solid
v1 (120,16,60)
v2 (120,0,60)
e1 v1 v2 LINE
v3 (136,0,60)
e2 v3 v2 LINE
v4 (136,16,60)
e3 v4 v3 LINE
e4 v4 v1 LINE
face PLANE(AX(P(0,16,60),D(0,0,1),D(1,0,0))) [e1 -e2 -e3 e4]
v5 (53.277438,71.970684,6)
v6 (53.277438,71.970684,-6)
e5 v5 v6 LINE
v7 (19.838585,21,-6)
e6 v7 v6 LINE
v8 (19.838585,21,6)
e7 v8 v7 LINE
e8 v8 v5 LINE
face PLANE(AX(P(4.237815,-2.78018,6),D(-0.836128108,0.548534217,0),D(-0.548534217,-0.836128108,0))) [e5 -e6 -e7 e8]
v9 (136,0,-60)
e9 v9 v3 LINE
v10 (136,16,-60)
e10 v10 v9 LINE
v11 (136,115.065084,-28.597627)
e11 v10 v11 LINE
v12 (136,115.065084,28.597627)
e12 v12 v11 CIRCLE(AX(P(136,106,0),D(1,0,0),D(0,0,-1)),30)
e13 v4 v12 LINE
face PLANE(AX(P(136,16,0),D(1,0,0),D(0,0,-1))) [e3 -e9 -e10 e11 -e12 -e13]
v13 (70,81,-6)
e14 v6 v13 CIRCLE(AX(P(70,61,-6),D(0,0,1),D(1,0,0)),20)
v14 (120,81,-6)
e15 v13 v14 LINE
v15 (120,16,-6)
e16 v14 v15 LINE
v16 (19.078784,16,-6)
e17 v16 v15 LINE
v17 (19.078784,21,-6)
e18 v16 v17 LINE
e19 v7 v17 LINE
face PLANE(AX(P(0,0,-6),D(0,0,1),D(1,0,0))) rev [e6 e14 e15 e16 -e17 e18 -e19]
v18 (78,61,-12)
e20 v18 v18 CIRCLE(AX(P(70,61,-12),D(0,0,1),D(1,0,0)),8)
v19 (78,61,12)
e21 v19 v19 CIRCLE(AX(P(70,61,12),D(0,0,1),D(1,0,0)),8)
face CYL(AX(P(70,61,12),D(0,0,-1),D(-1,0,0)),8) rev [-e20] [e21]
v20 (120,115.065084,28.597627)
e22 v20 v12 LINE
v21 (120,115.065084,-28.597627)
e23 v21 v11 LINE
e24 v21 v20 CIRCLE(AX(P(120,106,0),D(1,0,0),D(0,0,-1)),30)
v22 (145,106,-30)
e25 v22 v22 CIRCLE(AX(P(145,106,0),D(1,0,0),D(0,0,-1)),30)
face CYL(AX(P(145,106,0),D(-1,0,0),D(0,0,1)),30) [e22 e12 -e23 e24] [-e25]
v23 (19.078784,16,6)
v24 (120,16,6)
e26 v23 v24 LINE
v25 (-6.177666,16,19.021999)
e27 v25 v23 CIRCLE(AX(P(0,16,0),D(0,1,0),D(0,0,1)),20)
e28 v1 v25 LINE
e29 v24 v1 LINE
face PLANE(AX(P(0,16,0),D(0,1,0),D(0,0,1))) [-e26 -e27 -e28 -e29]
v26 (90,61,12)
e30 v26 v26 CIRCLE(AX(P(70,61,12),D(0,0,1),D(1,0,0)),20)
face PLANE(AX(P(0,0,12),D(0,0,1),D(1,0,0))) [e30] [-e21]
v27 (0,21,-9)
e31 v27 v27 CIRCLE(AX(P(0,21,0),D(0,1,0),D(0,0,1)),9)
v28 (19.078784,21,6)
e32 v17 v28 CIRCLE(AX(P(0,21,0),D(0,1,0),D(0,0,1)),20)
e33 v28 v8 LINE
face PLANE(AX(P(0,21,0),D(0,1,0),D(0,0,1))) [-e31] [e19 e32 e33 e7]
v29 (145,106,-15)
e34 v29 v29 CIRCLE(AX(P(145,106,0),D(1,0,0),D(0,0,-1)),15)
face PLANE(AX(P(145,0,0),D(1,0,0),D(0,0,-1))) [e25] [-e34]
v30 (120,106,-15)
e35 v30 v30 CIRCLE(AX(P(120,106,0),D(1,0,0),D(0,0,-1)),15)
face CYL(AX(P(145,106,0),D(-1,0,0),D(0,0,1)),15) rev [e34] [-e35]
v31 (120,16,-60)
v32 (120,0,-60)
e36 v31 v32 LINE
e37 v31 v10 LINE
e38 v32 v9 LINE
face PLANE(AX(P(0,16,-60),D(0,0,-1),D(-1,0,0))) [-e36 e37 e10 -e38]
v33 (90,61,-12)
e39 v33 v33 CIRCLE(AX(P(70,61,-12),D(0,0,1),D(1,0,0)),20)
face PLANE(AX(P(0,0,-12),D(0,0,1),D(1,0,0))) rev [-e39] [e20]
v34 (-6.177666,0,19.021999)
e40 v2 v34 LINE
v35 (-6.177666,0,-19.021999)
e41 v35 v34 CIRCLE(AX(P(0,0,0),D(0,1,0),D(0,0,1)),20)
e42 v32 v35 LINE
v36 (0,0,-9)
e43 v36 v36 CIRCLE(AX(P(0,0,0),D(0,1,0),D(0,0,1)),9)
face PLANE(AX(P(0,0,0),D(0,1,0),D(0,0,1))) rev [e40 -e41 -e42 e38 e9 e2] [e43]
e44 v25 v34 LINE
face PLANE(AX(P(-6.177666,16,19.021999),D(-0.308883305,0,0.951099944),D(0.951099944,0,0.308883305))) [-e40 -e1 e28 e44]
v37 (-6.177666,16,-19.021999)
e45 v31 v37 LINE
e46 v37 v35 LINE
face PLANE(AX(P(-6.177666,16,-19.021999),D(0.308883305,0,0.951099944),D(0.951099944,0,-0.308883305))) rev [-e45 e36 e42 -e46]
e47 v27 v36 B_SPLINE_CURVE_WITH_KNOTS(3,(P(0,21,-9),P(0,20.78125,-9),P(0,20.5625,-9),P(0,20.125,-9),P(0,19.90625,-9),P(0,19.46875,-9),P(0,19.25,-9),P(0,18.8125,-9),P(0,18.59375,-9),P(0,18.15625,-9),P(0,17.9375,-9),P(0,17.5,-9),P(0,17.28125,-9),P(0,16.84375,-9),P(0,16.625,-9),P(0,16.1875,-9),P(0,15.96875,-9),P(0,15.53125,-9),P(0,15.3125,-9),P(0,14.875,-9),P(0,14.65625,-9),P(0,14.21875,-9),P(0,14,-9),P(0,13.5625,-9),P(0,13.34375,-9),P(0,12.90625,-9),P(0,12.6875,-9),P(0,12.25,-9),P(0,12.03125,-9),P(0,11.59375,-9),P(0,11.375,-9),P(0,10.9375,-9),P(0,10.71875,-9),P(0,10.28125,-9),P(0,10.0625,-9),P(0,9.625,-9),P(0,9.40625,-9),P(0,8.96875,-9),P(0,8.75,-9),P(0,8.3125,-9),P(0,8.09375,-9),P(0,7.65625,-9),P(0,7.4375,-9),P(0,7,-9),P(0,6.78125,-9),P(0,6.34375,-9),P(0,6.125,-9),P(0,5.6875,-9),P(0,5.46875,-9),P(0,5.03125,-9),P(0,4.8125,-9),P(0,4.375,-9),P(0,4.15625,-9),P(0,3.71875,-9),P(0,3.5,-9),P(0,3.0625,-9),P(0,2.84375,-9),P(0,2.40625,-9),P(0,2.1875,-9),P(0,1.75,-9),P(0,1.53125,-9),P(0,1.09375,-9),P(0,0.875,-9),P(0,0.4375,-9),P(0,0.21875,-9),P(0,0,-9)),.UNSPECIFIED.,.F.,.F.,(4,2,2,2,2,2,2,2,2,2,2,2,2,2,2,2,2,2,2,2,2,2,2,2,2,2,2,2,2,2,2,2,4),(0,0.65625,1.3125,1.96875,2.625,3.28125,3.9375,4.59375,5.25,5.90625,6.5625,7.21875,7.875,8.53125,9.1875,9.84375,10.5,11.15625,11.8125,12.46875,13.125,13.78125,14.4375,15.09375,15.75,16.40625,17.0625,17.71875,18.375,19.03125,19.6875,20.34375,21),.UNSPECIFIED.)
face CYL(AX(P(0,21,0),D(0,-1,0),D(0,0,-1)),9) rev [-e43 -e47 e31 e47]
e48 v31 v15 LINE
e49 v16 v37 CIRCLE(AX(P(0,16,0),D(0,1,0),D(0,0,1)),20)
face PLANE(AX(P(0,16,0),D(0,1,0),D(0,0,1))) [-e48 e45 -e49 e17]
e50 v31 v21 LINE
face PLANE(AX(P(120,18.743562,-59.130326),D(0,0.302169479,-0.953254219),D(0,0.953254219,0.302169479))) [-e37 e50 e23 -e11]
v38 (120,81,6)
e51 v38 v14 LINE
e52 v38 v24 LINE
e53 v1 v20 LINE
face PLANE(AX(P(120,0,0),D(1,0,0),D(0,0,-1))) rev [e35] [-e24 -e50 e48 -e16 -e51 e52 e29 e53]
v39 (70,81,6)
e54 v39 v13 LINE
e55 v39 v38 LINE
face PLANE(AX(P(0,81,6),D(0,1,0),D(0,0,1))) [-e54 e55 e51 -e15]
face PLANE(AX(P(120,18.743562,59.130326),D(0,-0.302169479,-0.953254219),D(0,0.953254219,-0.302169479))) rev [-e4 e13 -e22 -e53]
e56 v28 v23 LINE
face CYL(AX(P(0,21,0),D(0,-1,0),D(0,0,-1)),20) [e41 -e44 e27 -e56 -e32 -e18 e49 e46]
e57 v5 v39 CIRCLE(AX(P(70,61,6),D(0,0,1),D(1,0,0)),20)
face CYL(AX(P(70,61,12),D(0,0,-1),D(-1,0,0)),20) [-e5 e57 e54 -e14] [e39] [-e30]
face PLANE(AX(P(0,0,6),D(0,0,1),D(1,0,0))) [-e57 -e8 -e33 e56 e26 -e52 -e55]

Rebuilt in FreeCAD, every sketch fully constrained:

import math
import FreeCAD as App
import Part
import Sketcher
from FreeCAD import Vector
Q = App.Units.Quantity


def add_polygon(sketch, points):
    """Adds a closed chain of lines whose ends are joined by coincident constraints."""
    first, n = sketch.GeometryCount, len(points)
    for a, b in zip(points, points[1:] + points[:1]):
        sketch.addGeometry(Part.LineSegment(App.Vector(*a, 0), App.Vector(*b, 0)), False)
    for i in range(n):
        sketch.addConstraint(Sketcher.Constraint("Coincident", first + i, 2, first + (i + 1) % n, 1))

doc = App.newDocument("Part")
params = doc.addObject("Spreadsheet::Sheet", "Params")
for row, (alias, value) in enumerate([
    ("sketch1_diameter", "40 mm"),
    ("sketch1_diameter2", "18 mm"),
    ("pad1_length", "21 mm"),
    ("sketch2_radius", "20 mm"),
    ("sketch2_width", "16 mm"),
    ("sketch2_height", "120 mm"),
    ("pad2_length", "16 mm"),
    ("sketch3_radius", "30 mm"),
    ("sketch3_height", "120 mm"),
    ("pad3_length", "16 mm"),
    ("sketch4_diameter", "60 mm"),
    ("sketch4_diameter2", "30 mm"),
    ("pad4_length", "25 mm"),
    ("sketch5_diameter", "40 mm"),
    ("sketch5_diameter2", "16 mm"),
    ("pad5_length", "24 mm"),
    ("sketch6_radius", "20 mm"),
    ("sketch6_width", "50 mm"),
    ("sketch6_height", "5 mm"),
    ("sketch6_height2", "65 mm"),
    ("pad6_length", "12 mm"),
    ("pad7_length", "5 mm"),
], start=1):
    params.set(f"A{row}", alias)
    params.set(f"B{row}", "=" + value)
    params.setAlias(f"B{row}", alias)

body = doc.addObject("PartDesign::Body", "Body")

# Sketch on XZ plane
sketch1 = body.newObject("Sketcher::SketchObject", "Sketch")
sketch1.AttachmentSupport = (doc.getObject("XZ_Plane"), [""])
sketch1.MapMode = "FlatFace"
sketch1.addGeometry(Part.Circle(Vector(0, 0, 0), Vector(0, 0, 1), 20), False)
sketch1.addGeometry(Part.Circle(Vector(0, 0, 0), Vector(0, 0, 1), 9), False)
sketch1.addConstraint(Sketcher.Constraint("Coincident", 0, 3, -1, 1))
sketch1.addConstraint(Sketcher.Constraint("Coincident", 1, 3, -1, 1))
sketch1.addConstraint(Sketcher.Constraint("Diameter", 0, Q("40 mm")))
sketch1.addConstraint(Sketcher.Constraint("Diameter", 1, Q("18 mm")))
sketch1.setExpression("Constraints[2]", "Params.sketch1_diameter")
sketch1.setExpression("Constraints[3]", "Params.sketch1_diameter2")
pad1 = body.newObject("PartDesign::Pad", "Pad")
pad1.Profile = sketch1
pad1.setExpression("Length", "Params.pad1_length")
pad1.Reversed = True

# Sketch on XZ plane
sketch2 = body.newObject("Sketcher::SketchObject", "Sketch001")
sketch2.AttachmentSupport = (doc.getObject("XZ_Plane"), [""])
sketch2.MapMode = "FlatFace"
sketch2.addGeometry(Part.ArcOfCircle(Part.Circle(Vector(0, 0, 0), Vector(0, 0, 1), 20), math.radians(0), math.radians(107.991946)), False)
sketch2.addGeometry(Part.LineSegment(Vector(-6.177666, 19.021999, 0), Vector(120, 60, 0)), False)
sketch2.addGeometry(Part.LineSegment(Vector(120, 60, 0), Vector(136, 60, 0)), False)
sketch2.addGeometry(Part.LineSegment(Vector(136, 60, 0), Vector(136, -60, 0)), False)
sketch2.addGeometry(Part.LineSegment(Vector(136, -60, 0), Vector(120, -60, 0)), False)
sketch2.addGeometry(Part.LineSegment(Vector(120, -60, 0), Vector(-6.177666, -19.021999, 0)), False)
sketch2.addGeometry(Part.ArcOfCircle(Part.Circle(Vector(0, 0, 0), Vector(0, 0, 1), 20), math.radians(-107.991946), math.radians(0)), False)
sketch2.addConstraint(Sketcher.Constraint("Tangent", 0, 2, 1, 1))
sketch2.addConstraint(Sketcher.Constraint("Coincident", 1, 2, 2, 1))
sketch2.addConstraint(Sketcher.Constraint("Coincident", 2, 2, 3, 1))
sketch2.addConstraint(Sketcher.Constraint("Coincident", 3, 2, 4, 1))
sketch2.addConstraint(Sketcher.Constraint("Coincident", 4, 2, 5, 1))
sketch2.addConstraint(Sketcher.Constraint("Tangent", 5, 2, 6, 1))
sketch2.addConstraint(Sketcher.Constraint("Tangent", 6, 2, 0, 1))
sketch2.addConstraint(Sketcher.Constraint("Horizontal", 2))
sketch2.addConstraint(Sketcher.Constraint("Vertical", 3))
sketch2.addConstraint(Sketcher.Constraint("Horizontal", 4))
sketch2.addConstraint(Sketcher.Constraint("Coincident", 0, 3, -1, 1))
sketch2.addConstraint(Sketcher.Constraint("Equal", 0, 6))
sketch2.addConstraint(Sketcher.Constraint("Symmetric", 1, 2, 4, 2, -1))
sketch2.addConstraint(Sketcher.Constraint("PointOnObject", 6, 2, -1))
sketch2.addConstraint(Sketcher.Constraint("Radius", 0, Q("20 mm")))
sketch2.addConstraint(Sketcher.Constraint("DistanceX", 2, 1, 2, 2, Q("16 mm")))
sketch2.addConstraint(Sketcher.Constraint("DistanceY", 3, 2, 3, 1, Q("120 mm")))
sketch2.addConstraint(Sketcher.Constraint("DistanceX", -1, 1, 1, 2, Q("120 mm")))
sketch2.setExpression("Constraints[14]", "Params.sketch2_radius")
sketch2.setExpression("Constraints[15]", "Params.sketch2_width")
sketch2.setExpression("Constraints[16]", "Params.sketch2_height")
pad2 = body.newObject("PartDesign::Pad", "Pad001")
pad2.Profile = sketch2
pad2.setExpression("Length", "Params.pad2_length")
pad2.Reversed = True

# Sketch on YZ plane
sketch3 = body.newObject("Sketcher::SketchObject", "Sketch002")
sketch3.AttachmentSupport = (doc.getObject("YZ_Plane"), [""])
sketch3.MapMode = "FlatFace"
sketch3.AttachmentOffset = App.Placement(Vector(0, 0, 136), App.Rotation())
sketch3.addGeometry(Part.LineSegment(Vector(115.065084, 28.597627, 0), Vector(16, 60, 0)), False)
sketch3.addGeometry(Part.LineSegment(Vector(16, 60, 0), Vector(16, -60, 0)), False)
sketch3.addGeometry(Part.LineSegment(Vector(16, -60, 0), Vector(115.065084, -28.597627, 0)), False)
sketch3.addGeometry(Part.ArcOfCircle(Part.Circle(Vector(106, 0, 0), Vector(0, 0, 1), 30), math.radians(-90), math.radians(-72.412046)), False)
sketch3.addGeometry(Part.ArcOfCircle(Part.Circle(Vector(106, 0, 0), Vector(0, 0, 1), 30), math.radians(72.412046), math.radians(270)), False)
sketch3.addConstraint(Sketcher.Constraint("Coincident", 0, 2, 1, 1))
sketch3.addConstraint(Sketcher.Constraint("Coincident", 1, 2, 2, 1))
sketch3.addConstraint(Sketcher.Constraint("Tangent", 2, 2, 3, 2))
sketch3.addConstraint(Sketcher.Constraint("Tangent", 3, 1, 4, 2))
sketch3.addConstraint(Sketcher.Constraint("Tangent", 4, 1, 0, 1))
sketch3.addConstraint(Sketcher.Constraint("Vertical", 1))
sketch3.addConstraint(Sketcher.Constraint("Equal", 3, 4))
sketch3.addConstraint(Sketcher.Constraint("Symmetric", 2, 2, 4, 1, -1))
sketch3.addConstraint(Sketcher.Constraint("Vertical", 4, 3, 3, 1))
sketch3.addConstraint(Sketcher.Constraint("Radius", 3, Q("30 mm")))
sketch3.addConstraint(Sketcher.Constraint("DistanceY", 1, 2, 1, 1, Q("120 mm")))
sketch3.addConstraint(Sketcher.Constraint("DistanceX", -1, 1, 3, 3, Q("106 mm")))
sketch3.addConstraint(Sketcher.Constraint("DistanceX", -1, 1, 0, 2, Q("16 mm")))
sketch3.setExpression("Constraints[9]", "Params.sketch3_radius")
sketch3.setExpression("Constraints[10]", "Params.sketch3_height")
pad3 = body.newObject("PartDesign::Pad", "Pad002")
pad3.Profile = sketch3
pad3.setExpression("Length", "Params.pad3_length")
pad3.Reversed = True

# Sketch on YZ plane
sketch4 = body.newObject("Sketcher::SketchObject", "Sketch003")
sketch4.AttachmentSupport = (doc.getObject("YZ_Plane"), [""])
sketch4.MapMode = "FlatFace"
sketch4.AttachmentOffset = App.Placement(Vector(0, 0, 145), App.Rotation())
sketch4.addGeometry(Part.Circle(Vector(106, 0, 0), Vector(0, 0, 1), 30), False)
sketch4.addGeometry(Part.Circle(Vector(106, 0, 0), Vector(0, 0, 1), 15), False)
sketch4.addConstraint(Sketcher.Constraint("Coincident", 1, 3, 0, 3))
sketch4.addConstraint(Sketcher.Constraint("PointOnObject", 0, 3, -1))
sketch4.addConstraint(Sketcher.Constraint("Diameter", 0, Q("60 mm")))
sketch4.addConstraint(Sketcher.Constraint("Diameter", 1, Q("30 mm")))
sketch4.addConstraint(Sketcher.Constraint("DistanceX", -1, 1, 0, 3, Q("106 mm")))
sketch4.setExpression("Constraints[2]", "Params.sketch4_diameter")
sketch4.setExpression("Constraints[3]", "Params.sketch4_diameter2")
pad4 = body.newObject("PartDesign::Pad", "Pad003")
pad4.Profile = sketch4
pad4.setExpression("Length", "Params.pad4_length")
pad4.Reversed = True
body2 = doc.addObject("PartDesign::Body", "Body001")

# Sketch on XY plane
sketch5 = body2.newObject("Sketcher::SketchObject", "Sketch004")
sketch5.AttachmentSupport = (doc.getObject("XY_Plane001"), [""])
sketch5.MapMode = "FlatFace"
sketch5.addGeometry(Part.Circle(Vector(70, 61, 0), Vector(0, 0, 1), 20), False)
sketch5.addGeometry(Part.Circle(Vector(70, 61, 0), Vector(0, 0, 1), 8), False)
sketch5.addConstraint(Sketcher.Constraint("Coincident", 1, 3, 0, 3))
sketch5.addConstraint(Sketcher.Constraint("Diameter", 0, Q("40 mm")))
sketch5.addConstraint(Sketcher.Constraint("Diameter", 1, Q("16 mm")))
sketch5.addConstraint(Sketcher.Constraint("DistanceX", -1, 1, 0, 3, Q("70 mm")))
sketch5.addConstraint(Sketcher.Constraint("DistanceY", -1, 1, 0, 3, Q("61 mm")))
sketch5.setExpression("Constraints[1]", "Params.sketch5_diameter")
sketch5.setExpression("Constraints[2]", "Params.sketch5_diameter2")
pad5 = body2.newObject("PartDesign::Pad", "Pad004")
pad5.Profile = sketch5
pad5.setExpression("Length", "Params.pad5_length")
pad5.Midplane = True
body.AllowCompound = True
doc.recompute()

boolean = body.newObject("PartDesign::Boolean", "Boolean")
boolean.Type = "Fuse"
boolean.addObjects([body2])

# Sketch on XY plane
sketch6 = body.newObject("Sketcher::SketchObject", "Sketch005")
sketch6.AttachmentSupport = (doc.getObject("XY_Plane"), [""])
sketch6.MapMode = "FlatFace"
sketch6.addGeometry(Part.LineSegment(Vector(120, 81, 0), Vector(70, 81, 0)), False)
sketch6.addGeometry(Part.ArcOfCircle(Part.Circle(Vector(70, 61, 0), Vector(0, 0, 1), 20), math.radians(0), math.radians(90)), False)
sketch6.addGeometry(Part.ArcOfCircle(Part.Circle(Vector(70, 61, 0), Vector(0, 0, 1), 20), math.radians(146.733488), math.radians(360)), False)
sketch6.addGeometry(Part.LineSegment(Vector(53.277438, 71.970684, 0), Vector(19.838585, 21, 0)), False)
sketch6.addGeometry(Part.LineSegment(Vector(19.838585, 21, 0), Vector(19.838585, 16, 0)), False)
sketch6.addGeometry(Part.LineSegment(Vector(19.838585, 16, 0), Vector(120, 16, 0)), False)
sketch6.addGeometry(Part.LineSegment(Vector(120, 16, 0), Vector(120, 81, 0)), False)
sketch6.addConstraint(Sketcher.Constraint("Tangent", 0, 2, 1, 2))
sketch6.addConstraint(Sketcher.Constraint("Tangent", 1, 1, 2, 2))
sketch6.addConstraint(Sketcher.Constraint("Tangent", 2, 1, 3, 1))
sketch6.addConstraint(Sketcher.Constraint("Coincident", 3, 2, 4, 1))
sketch6.addConstraint(Sketcher.Constraint("Coincident", 4, 2, 5, 1))
sketch6.addConstraint(Sketcher.Constraint("Coincident", 5, 2, 6, 1))
sketch6.addConstraint(Sketcher.Constraint("Coincident", 6, 2, 0, 1))
sketch6.addConstraint(Sketcher.Constraint("Horizontal", 0))
sketch6.addConstraint(Sketcher.Constraint("Vertical", 4))
sketch6.addConstraint(Sketcher.Constraint("Horizontal", 5))
sketch6.addConstraint(Sketcher.Constraint("Vertical", 6))
sketch6.addConstraint(Sketcher.Constraint("Equal", 1, 2))
sketch6.addConstraint(Sketcher.Constraint("Horizontal", 2, 3, 1, 1))
sketch6.addConstraint(Sketcher.Constraint("Radius", 1, Q("20 mm")))
sketch6.addConstraint(Sketcher.Constraint("DistanceX", 0, 2, 0, 1, Q("50 mm")))
sketch6.addConstraint(Sketcher.Constraint("DistanceY", 4, 2, 4, 1, Q("5 mm")))
sketch6.addConstraint(Sketcher.Constraint("DistanceY", 6, 1, 6, 2, Q("65 mm")))
sketch6.addConstraint(Sketcher.Constraint("DistanceX", -1, 1, 1, 3, Q("70 mm")))
sketch6.addConstraint(Sketcher.Constraint("DistanceY", -1, 1, 1, 3, Q("61 mm")))
sketch6.addConstraint(Sketcher.Constraint("DistanceX", 5, 1, 5, 2, Q("100.161415 mm")))
sketch6.setExpression("Constraints[13]", "Params.sketch6_radius")
sketch6.setExpression("Constraints[14]", "Params.sketch6_width")
sketch6.setExpression("Constraints[15]", "Params.sketch6_height")
sketch6.setExpression("Constraints[16]", "Params.sketch6_height2")
pad6 = body.newObject("PartDesign::Pad", "Pad005")
pad6.Profile = sketch6
pad6.setExpression("Length", "Params.pad6_length")
pad6.Midplane = True

# Sketch on XZ plane
sketch7 = body.newObject("Sketcher::SketchObject", "Sketch006")
sketch7.AttachmentSupport = (doc.getObject("XZ_Plane"), [""])
sketch7.MapMode = "FlatFace"
sketch7.AttachmentOffset = App.Placement(Vector(0, 0, -16), App.Rotation())
add_polygon(sketch7, [(19.838585, -2.535849), (19.838585, -6), (18.936317, -6)])  # lines 0-2
add_polygon(sketch7, [(18.936317, 6), (19.838585, 6), (19.838585, 2.535849)])  # lines 3-5
sketch7.addConstraint(Sketcher.Constraint("Vertical", 0))
sketch7.addConstraint(Sketcher.Constraint("Horizontal", 1))
sketch7.addConstraint(Sketcher.Constraint("Horizontal", 3))
sketch7.addConstraint(Sketcher.Constraint("Vertical", 4))
sketch7.addConstraint(Sketcher.Constraint("Symmetric", 0, 2, 3, 2, -1))
sketch7.addConstraint(Sketcher.Constraint("Vertical", 1, 2, 5, 2))
sketch7.addConstraint(Sketcher.Constraint("Equal", 0, 4))
sketch7.addConstraint(Sketcher.Constraint("DistanceY", 0, 2, -1, 1, Q("6 mm")))
sketch7.addConstraint(Sketcher.Constraint("DistanceX", 1, 2, 1, 1, Q("0.902269 mm")))
sketch7.addConstraint(Sketcher.Constraint("DistanceY", 0, 2, 0, 1, Q("3.464151 mm")))
sketch7.addConstraint(Sketcher.Constraint("DistanceX", -1, 1, 0, 2, Q("19.838585 mm")))
pad7 = body.newObject("PartDesign::Pad", "Pad006")
pad7.Profile = sketch7
pad7.setExpression("Length", "Params.pad7_length")
pad7.Reversed = True

doc.recompute()
